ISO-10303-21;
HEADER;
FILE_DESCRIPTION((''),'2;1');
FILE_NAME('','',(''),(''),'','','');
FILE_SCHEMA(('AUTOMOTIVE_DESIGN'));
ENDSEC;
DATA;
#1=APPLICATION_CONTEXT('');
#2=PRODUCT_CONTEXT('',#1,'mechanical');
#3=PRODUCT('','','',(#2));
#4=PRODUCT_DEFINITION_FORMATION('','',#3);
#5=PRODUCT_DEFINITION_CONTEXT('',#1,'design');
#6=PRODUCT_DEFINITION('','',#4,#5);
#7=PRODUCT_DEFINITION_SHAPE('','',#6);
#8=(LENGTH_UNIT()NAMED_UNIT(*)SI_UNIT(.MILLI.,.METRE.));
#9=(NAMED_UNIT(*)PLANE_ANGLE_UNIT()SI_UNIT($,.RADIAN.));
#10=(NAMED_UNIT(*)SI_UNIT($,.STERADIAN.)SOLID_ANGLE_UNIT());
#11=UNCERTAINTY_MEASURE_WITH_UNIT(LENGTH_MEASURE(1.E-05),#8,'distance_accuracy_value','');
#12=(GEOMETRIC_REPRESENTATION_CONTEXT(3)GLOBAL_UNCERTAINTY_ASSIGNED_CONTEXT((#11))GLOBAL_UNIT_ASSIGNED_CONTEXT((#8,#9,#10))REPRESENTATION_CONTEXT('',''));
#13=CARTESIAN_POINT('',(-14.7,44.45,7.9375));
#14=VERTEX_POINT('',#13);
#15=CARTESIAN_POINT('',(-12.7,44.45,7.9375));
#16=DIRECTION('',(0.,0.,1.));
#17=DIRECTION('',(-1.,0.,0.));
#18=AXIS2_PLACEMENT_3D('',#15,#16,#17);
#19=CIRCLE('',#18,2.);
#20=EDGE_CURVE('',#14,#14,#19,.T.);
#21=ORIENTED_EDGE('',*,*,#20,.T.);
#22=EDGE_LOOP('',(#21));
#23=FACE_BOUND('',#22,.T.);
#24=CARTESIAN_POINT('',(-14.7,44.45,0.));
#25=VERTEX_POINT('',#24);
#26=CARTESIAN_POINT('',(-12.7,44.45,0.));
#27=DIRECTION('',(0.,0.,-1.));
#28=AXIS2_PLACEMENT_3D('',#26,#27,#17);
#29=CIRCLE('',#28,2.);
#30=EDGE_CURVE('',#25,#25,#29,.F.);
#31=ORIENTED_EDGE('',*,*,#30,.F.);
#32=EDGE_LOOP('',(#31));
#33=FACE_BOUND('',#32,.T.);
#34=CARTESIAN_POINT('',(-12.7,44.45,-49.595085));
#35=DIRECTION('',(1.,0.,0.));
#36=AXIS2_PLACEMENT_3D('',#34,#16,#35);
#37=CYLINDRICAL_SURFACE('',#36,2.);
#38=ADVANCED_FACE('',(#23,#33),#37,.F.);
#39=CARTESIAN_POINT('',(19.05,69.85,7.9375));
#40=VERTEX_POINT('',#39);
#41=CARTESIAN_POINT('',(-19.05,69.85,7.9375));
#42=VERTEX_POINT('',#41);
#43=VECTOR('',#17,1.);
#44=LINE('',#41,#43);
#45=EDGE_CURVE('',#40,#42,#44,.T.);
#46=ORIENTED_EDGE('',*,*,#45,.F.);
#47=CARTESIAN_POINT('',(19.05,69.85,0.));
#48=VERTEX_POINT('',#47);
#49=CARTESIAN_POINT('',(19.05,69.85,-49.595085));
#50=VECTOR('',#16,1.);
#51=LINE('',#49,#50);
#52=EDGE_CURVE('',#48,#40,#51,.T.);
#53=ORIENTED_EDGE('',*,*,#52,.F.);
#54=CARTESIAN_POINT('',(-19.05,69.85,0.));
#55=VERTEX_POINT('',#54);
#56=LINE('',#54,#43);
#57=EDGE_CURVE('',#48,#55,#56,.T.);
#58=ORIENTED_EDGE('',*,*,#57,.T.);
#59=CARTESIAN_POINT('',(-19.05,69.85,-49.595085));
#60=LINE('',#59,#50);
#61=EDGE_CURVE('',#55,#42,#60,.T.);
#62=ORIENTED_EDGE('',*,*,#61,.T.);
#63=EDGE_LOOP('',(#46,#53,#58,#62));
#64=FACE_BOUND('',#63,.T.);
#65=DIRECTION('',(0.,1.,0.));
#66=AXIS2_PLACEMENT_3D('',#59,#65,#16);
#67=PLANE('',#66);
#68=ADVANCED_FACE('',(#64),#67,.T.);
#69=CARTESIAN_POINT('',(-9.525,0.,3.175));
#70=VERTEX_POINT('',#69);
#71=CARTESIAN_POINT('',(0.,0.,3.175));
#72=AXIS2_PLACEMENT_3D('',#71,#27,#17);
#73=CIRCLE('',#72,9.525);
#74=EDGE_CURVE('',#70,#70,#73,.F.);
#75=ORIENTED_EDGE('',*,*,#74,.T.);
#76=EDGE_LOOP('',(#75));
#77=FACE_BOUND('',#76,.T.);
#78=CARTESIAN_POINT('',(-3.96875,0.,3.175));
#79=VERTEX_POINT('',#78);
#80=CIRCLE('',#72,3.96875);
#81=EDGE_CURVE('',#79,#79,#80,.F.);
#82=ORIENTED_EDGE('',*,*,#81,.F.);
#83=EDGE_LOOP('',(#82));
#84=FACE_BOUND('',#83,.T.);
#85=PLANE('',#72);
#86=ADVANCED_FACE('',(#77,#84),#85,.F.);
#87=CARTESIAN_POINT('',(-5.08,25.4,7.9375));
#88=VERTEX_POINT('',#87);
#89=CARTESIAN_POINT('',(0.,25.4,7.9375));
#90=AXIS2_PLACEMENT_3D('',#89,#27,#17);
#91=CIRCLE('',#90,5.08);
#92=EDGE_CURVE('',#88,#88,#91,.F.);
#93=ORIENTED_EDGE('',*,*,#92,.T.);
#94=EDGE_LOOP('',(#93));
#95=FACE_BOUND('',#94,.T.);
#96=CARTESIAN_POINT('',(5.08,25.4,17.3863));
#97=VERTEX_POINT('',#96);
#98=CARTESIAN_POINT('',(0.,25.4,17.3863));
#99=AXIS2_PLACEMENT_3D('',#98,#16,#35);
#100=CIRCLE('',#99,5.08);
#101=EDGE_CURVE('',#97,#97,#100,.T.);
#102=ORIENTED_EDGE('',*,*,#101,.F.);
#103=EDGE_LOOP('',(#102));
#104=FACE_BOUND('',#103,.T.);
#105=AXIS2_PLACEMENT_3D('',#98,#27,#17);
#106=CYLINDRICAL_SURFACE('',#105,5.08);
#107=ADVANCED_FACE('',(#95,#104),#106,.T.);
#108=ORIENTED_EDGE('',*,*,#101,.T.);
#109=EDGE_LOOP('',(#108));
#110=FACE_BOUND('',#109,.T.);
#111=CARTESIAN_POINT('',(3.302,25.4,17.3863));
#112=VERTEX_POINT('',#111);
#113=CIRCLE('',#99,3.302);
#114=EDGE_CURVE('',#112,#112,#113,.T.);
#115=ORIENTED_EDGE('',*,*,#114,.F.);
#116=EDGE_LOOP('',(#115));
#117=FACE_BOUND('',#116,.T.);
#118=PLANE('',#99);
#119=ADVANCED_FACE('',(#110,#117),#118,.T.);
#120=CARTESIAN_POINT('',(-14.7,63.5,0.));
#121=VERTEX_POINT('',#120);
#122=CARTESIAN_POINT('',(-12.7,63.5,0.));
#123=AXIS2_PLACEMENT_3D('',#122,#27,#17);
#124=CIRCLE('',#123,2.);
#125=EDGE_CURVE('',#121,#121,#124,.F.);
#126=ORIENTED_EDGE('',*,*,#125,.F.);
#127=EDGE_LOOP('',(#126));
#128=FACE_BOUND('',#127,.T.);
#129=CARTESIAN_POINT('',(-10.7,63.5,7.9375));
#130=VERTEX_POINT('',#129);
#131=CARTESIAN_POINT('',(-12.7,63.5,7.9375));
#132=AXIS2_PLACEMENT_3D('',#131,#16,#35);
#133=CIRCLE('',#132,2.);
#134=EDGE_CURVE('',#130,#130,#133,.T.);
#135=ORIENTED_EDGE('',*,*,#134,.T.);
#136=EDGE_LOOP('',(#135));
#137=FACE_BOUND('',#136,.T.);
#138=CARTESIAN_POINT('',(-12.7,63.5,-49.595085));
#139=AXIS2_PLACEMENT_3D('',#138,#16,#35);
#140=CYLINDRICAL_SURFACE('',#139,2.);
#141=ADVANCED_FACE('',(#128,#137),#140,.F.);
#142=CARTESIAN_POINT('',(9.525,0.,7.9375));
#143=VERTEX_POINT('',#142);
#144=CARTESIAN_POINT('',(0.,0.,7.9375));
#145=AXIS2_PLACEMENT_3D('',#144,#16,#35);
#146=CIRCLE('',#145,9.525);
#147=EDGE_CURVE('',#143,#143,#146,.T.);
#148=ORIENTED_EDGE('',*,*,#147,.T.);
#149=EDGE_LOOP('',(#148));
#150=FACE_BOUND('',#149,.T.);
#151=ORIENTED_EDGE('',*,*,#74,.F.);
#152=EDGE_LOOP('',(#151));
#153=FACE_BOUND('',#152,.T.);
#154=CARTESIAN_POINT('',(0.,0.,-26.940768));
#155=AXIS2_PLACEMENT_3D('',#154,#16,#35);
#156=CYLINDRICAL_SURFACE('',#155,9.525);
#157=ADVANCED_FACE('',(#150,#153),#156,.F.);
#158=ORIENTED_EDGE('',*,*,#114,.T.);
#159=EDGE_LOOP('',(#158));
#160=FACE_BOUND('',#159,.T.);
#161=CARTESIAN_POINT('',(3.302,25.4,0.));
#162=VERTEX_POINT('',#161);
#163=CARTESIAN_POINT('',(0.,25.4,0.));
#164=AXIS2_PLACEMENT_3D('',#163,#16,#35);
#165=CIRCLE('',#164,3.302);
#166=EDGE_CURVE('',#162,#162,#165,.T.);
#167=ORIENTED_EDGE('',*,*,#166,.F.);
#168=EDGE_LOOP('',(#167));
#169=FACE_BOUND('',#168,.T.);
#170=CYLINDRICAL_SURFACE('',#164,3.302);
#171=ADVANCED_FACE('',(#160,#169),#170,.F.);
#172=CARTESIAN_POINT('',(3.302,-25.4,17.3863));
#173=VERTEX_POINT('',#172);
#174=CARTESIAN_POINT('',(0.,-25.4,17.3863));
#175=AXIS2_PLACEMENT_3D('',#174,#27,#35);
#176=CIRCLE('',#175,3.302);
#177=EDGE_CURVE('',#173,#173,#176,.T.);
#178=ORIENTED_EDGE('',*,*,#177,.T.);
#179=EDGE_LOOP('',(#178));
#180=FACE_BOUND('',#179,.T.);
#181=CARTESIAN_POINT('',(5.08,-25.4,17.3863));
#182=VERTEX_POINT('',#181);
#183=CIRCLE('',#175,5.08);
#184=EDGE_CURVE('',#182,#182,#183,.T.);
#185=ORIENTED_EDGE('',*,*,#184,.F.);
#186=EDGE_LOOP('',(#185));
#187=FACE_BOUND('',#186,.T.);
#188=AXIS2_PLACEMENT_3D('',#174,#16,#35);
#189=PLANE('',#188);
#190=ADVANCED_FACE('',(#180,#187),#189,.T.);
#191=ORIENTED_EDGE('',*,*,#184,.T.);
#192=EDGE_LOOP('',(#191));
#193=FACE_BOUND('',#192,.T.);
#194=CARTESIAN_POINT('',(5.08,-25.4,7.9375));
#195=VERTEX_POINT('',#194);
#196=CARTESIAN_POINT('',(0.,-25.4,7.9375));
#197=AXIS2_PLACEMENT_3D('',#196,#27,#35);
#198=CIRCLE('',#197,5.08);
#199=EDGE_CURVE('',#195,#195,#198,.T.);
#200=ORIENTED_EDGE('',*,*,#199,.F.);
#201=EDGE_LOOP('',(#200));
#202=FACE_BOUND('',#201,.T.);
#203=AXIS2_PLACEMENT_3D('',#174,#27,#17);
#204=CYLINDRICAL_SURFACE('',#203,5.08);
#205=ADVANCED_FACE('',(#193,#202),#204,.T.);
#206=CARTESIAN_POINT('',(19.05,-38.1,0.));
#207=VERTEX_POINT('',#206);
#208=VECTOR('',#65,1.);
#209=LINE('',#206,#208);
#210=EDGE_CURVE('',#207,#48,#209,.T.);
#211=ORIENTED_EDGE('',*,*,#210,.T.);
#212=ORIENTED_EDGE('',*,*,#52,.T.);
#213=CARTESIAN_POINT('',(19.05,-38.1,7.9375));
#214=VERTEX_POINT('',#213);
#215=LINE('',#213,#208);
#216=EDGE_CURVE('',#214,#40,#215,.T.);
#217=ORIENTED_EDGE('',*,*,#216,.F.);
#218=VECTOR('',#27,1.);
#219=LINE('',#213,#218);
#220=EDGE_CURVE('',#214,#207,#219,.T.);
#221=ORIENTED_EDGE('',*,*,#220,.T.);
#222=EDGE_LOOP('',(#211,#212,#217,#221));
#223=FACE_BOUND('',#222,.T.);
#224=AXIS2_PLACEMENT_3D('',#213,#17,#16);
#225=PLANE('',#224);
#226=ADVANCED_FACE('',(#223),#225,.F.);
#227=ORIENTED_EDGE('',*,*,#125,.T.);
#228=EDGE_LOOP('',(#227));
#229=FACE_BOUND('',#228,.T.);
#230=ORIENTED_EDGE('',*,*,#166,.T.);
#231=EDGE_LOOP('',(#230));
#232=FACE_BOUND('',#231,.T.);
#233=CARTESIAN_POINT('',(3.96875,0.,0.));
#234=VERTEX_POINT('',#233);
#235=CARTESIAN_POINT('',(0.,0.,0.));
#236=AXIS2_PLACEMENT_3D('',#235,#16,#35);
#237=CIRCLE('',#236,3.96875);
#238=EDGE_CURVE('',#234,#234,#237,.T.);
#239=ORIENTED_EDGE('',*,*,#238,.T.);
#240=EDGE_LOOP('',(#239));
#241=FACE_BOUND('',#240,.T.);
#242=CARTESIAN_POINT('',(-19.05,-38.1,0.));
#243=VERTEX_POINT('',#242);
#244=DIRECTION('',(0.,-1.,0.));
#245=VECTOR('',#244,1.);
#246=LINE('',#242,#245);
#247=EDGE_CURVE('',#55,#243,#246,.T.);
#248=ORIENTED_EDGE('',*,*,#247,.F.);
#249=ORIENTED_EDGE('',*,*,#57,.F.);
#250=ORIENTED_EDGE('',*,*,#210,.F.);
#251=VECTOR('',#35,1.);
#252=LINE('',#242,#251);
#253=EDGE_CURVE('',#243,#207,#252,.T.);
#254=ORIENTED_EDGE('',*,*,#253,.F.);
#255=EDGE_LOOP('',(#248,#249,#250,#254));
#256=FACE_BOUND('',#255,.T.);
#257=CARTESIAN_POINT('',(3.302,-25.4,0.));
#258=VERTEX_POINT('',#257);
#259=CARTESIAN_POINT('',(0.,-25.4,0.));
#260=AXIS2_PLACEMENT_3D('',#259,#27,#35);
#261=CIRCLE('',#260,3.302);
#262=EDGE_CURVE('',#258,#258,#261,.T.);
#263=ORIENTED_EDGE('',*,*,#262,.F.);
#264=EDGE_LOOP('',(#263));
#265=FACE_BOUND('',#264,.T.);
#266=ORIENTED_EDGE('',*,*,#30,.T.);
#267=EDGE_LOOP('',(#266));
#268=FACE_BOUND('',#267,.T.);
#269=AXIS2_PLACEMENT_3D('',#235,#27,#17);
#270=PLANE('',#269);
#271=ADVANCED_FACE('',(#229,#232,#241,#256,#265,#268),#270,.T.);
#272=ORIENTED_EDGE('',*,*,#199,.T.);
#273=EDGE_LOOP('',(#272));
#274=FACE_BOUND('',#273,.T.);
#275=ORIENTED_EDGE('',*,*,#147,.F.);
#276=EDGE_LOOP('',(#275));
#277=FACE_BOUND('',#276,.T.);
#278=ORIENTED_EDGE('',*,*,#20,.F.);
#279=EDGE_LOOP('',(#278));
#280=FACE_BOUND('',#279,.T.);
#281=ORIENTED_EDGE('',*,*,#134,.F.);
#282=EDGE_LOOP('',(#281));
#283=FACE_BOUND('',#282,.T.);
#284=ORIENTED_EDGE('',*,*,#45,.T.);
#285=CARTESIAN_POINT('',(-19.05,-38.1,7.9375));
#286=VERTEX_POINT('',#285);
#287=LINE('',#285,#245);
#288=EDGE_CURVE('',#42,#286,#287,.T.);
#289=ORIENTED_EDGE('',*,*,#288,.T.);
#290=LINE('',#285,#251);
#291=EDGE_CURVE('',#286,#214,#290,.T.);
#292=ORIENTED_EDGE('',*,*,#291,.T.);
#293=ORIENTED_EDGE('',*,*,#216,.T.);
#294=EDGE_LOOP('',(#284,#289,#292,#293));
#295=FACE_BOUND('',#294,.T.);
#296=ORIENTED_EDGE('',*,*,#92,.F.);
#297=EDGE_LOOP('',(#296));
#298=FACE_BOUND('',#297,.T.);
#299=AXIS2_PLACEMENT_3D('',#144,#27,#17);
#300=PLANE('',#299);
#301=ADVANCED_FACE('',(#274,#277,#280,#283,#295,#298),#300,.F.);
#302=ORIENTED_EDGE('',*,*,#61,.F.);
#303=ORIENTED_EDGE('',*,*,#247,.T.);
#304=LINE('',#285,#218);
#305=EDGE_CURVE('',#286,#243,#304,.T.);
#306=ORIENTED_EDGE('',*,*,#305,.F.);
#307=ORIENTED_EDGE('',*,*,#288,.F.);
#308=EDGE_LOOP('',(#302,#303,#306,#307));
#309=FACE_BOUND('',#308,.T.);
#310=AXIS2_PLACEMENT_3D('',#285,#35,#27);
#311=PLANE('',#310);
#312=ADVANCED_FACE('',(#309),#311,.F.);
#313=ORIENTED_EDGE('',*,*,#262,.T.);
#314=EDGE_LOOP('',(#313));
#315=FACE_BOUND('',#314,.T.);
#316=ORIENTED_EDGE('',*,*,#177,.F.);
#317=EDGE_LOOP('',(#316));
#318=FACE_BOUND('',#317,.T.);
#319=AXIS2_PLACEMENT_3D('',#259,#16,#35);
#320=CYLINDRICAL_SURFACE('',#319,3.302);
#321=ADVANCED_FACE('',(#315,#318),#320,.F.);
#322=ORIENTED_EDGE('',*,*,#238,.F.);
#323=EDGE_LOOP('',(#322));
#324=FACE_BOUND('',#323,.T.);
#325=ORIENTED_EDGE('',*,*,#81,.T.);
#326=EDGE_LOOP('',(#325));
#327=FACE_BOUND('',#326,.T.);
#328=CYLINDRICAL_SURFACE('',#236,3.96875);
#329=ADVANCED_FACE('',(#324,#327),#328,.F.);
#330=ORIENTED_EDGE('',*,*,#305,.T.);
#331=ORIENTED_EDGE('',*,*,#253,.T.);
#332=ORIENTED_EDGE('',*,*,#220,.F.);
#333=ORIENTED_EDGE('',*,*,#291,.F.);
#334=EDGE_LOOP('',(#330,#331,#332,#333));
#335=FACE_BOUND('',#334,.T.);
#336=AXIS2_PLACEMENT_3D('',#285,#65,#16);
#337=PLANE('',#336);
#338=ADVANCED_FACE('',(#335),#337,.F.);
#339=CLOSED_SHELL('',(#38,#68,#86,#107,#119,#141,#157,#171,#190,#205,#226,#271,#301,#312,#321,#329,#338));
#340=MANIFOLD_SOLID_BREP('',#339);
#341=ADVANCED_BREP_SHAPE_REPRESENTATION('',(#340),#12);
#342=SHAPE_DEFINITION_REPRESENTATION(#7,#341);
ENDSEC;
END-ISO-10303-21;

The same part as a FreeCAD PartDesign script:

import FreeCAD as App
import Part
import Sketcher
from FreeCAD import Vector
Q = App.Units.Quantity

doc = App.newDocument("Part")
params = doc.addObject("Spreadsheet::Sheet", "Params")
for row, (alias, value) in enumerate([
    ("sketch1_height", "3 in"),
    ("sketch1_width", "1.5 in"),
    ("pad1_length", "0.3125 in"),
    ("sketch2_diameter", "0.3125 in"),
    ("sketch3_diameter", "0.75 in"),
    ("pocket2_length", "0.1875 in"),
    ("sketch4_diameter", "0.4 in"),
    ("pad2_length", "0.372 in"),
    ("sketch5_diameter", "0.26 in"),
    ("sketch6_width", "1.5 in"),
    ("sketch6_height", "1.25 in"),
    ("pad3_length", "0.3125 in"),
], start=1):
    params.set(f"A{row}", alias)
    params.set(f"B{row}", "=" + value)
    params.setAlias(f"B{row}", alias)

body = doc.addObject("PartDesign::Body", "Body")

# Sketch on XY plane
sketch1 = body.newObject("Sketcher::SketchObject", "Sketch")
sketch1.AttachmentSupport = (doc.getObject("XY_Plane"), [""])
sketch1.MapMode = "FlatFace"
sketch1.addGeometry([
    Part.LineSegment(Vector(-19, 38, 0), Vector(-19, -38, 0)),
    Part.LineSegment(Vector(-19, -38, 0), Vector(19, -38, 0)),
    Part.LineSegment(Vector(19, -38, 0), Vector(19, 38, 0)),
    Part.LineSegment(Vector(19, 38, 0), Vector(-19, 38, 0)),
], False)
sketch1.addConstraint([
    Sketcher.Constraint("Coincident", 0, 2, 1, 1),
    Sketcher.Constraint("Coincident", 1, 2, 2, 1),
    Sketcher.Constraint("Coincident", 2, 2, 3, 1),
    Sketcher.Constraint("Coincident", 3, 2, 0, 1),
    Sketcher.Constraint("Vertical", 0),
    Sketcher.Constraint("Horizontal", 1),
    Sketcher.Constraint("Vertical", 2),
    Sketcher.Constraint("Horizontal", 3),
    Sketcher.Constraint("Symmetric", 0, 2, 2, 2, -1, 1),
    Sketcher.Constraint("DistanceY", 0, 2, 0, 1, Q("3 in")),
    Sketcher.Constraint("DistanceX", 1, 1, 1, 2, Q("1.5 in")),
])
sketch1.setExpression("Constraints[9]", "Params.sketch1_height")
sketch1.setExpression("Constraints[10]", "Params.sketch1_width")
pad1 = body.newObject("PartDesign::Pad", "Pad")
pad1.Profile = sketch1
pad1.setExpression("Length", "Params.pad1_length")

# Sketch on XY plane
sketch2 = body.newObject("Sketcher::SketchObject", "Sketch001")
sketch2.AttachmentSupport = (doc.getObject("XY_Plane"), [""])
sketch2.MapMode = "FlatFace"
sketch2.AttachmentOffset = App.Placement(Vector(0, 0, 0.3125 * 25.4), App.Rotation())
sketch2.addGeometry(Part.Circle(Vector(0, 0, 0), Vector(0, 0, 1), 4), False)
sketch2.addConstraint([
    Sketcher.Constraint("Coincident", 0, 3, -1, 1),
    Sketcher.Constraint("Diameter", 0, Q("0.3125 in")),
])
sketch2.setExpression("Constraints[1]", "Params.sketch2_diameter")
pocket1 = body.newObject("PartDesign::Pocket", "Pocket")
pocket1.Profile = sketch2
pocket1.Type = "ThroughAll"

# Sketch on XY plane
sketch3 = body.newObject("Sketcher::SketchObject", "Sketch002")
sketch3.AttachmentSupport = (doc.getObject("XY_Plane"), [""])
sketch3.MapMode = "FlatFace"
sketch3.AttachmentOffset = App.Placement(Vector(0, 0, 0.3125 * 25.4), App.Rotation())
sketch3.addGeometry(Part.Circle(Vector(0, 0, 0), Vector(0, 0, 1), 10), False)
sketch3.addConstraint([
    Sketcher.Constraint("Coincident", 0, 3, -1, 1),
    Sketcher.Constraint("Diameter", 0, Q("0.75 in")),
])
sketch3.setExpression("Constraints[1]", "Params.sketch3_diameter")
pocket2 = body.newObject("PartDesign::Pocket", "Pocket001")
pocket2.Profile = sketch3
pocket2.setExpression("Length", "Params.pocket2_length")

# Sketch on XY plane
sketch4 = body.newObject("Sketcher::SketchObject", "Sketch003")
sketch4.AttachmentSupport = (doc.getObject("XY_Plane"), [""])
sketch4.MapMode = "FlatFace"
sketch4.AttachmentOffset = App.Placement(Vector(0, 0, 0.3125 * 25.4), App.Rotation())
sketch4.addGeometry(Part.Circle(Vector(0, 25, 0), Vector(0, 0, 1), 5), False)
sketch4.addConstraint([
    Sketcher.Constraint("PointOnObject", 0, 3, -2),
    Sketcher.Constraint("Diameter", 0, Q("0.4 in")),
    Sketcher.Constraint("DistanceY", -1, 1, 0, 3, Q("1 in")),
])
sketch4.setExpression("Constraints[1]", "Params.sketch4_diameter")
pad2 = body.newObject("PartDesign::Pad", "Pad001")
pad2.Profile = sketch4
pad2.setExpression("Length", "Params.pad2_length")

# Sketch on XY plane
sketch5 = body.newObject("Sketcher::SketchObject", "Sketch004")
sketch5.AttachmentSupport = (doc.getObject("XY_Plane"), [""])
sketch5.MapMode = "FlatFace"
sketch5.AttachmentOffset = App.Placement(Vector(0, 0, 0.6845 * 25.4), App.Rotation())
sketch5.addGeometry(Part.Circle(Vector(0, 25.4, 0), Vector(0, 0, 1), 3.3), False)
sketch5.addConstraint([
    Sketcher.Constraint("PointOnObject", 0, 3, -2),
    Sketcher.Constraint("Diameter", 0, Q("0.26 in")),
    Sketcher.Constraint("DistanceY", -1, 1, 0, 3, Q("1 in")),
])
sketch5.setExpression("Constraints[1]", "Params.sketch5_diameter")
pocket3 = body.newObject("PartDesign::Pocket", "Pocket002")
pocket3.Profile = sketch5
pocket3.Type = "ThroughAll"
doc.recompute()

mirrored = body.newObject("PartDesign::Mirrored", "Mirrored")
mirrored.Originals = [pad2, pocket3]
mirrored.MirrorPlane = (doc.getObject("XZ_Plane"), [""])
body.Tip = mirrored

# Sketch on XY plane
sketch6 = body.newObject("Sketcher::SketchObject", "Sketch005")
sketch6.AttachmentSupport = (doc.getObject("XY_Plane"), [""])
sketch6.MapMode = "FlatFace"
sketch6.AttachmentOffset = App.Placement(Vector(0, 0, 0.3125 * 25.4), App.Rotation())
sketch6.addGeometry([
    Part.LineSegment(Vector(-19.1, 69.8, 0), Vector(-19.1, 38.1, 0)),  # 0
    Part.LineSegment(Vector(-19.1, 38.1, 0), Vector(19.1, 38.1, 0)),  # 1
    Part.LineSegment(Vector(19.1, 38.1, 0), Vector(19.1, 69.8, 0)),  # 2
    Part.LineSegment(Vector(19.1, 69.8, 0), Vector(-19.1, 69.8, 0)),  # 3
    Part.Circle(Vector(-12.7, 44.5, 0), Vector(0, 0, 1), 2),  # 4
    Part.Circle(Vector(-12.7, 63.5, 0), Vector(0, 0, 1), 2),  # 5
], False)
sketch6.addConstraint([
    Sketcher.Constraint("Coincident", 0, 2, 1, 1),
    Sketcher.Constraint("Coincident", 1, 2, 2, 1),
    Sketcher.Constraint("Coincident", 2, 2, 3, 1),
    Sketcher.Constraint("Coincident", 3, 2, 0, 1),
    Sketcher.Constraint("Vertical", 0),
    Sketcher.Constraint("Horizontal", 1),
    Sketcher.Constraint("Vertical", 2),
    Sketcher.Constraint("Horizontal", 3),
    Sketcher.Constraint("Equal", 4, 5),
    Sketcher.Constraint("Vertical", 4, 3, 5, 3),
    Sketcher.Constraint("DistanceX", 1, 1, 1, 2, Q("1.5 in")),
    Sketcher.Constraint("DistanceY", 0, 2, 5, 3, Q("1 in")),
    Sketcher.Constraint("DistanceY", 4, 3, 2, 2, Q("1 in")),
    Sketcher.Constraint("DistanceY", 0, 2, 0, 1, Q("1.25 in")),
    Sketcher.Constraint("DistanceX", 4, 3, -1, 1, Q("0.5 in")),
    Sketcher.Constraint("DistanceY", -1, 1, 5, 3, Q("2.5 in")),
    Sketcher.Constraint("Diameter", 4, Q("4 mm")),
    Sketcher.Constraint("DistanceX", 0, 2, -1, 1, Q("0.75 in")),
])
sketch6.setExpression("Constraints[10]", "Params.sketch6_width")
sketch6.setExpression("Constraints[13]", "Params.sketch6_height")
pad3 = body.newObject("PartDesign::Pad", "Pad002")
pad3.Profile = sketch6
pad3.setExpression("Length", "Params.pad3_length")
pad3.Reversed = True

doc.recompute()
